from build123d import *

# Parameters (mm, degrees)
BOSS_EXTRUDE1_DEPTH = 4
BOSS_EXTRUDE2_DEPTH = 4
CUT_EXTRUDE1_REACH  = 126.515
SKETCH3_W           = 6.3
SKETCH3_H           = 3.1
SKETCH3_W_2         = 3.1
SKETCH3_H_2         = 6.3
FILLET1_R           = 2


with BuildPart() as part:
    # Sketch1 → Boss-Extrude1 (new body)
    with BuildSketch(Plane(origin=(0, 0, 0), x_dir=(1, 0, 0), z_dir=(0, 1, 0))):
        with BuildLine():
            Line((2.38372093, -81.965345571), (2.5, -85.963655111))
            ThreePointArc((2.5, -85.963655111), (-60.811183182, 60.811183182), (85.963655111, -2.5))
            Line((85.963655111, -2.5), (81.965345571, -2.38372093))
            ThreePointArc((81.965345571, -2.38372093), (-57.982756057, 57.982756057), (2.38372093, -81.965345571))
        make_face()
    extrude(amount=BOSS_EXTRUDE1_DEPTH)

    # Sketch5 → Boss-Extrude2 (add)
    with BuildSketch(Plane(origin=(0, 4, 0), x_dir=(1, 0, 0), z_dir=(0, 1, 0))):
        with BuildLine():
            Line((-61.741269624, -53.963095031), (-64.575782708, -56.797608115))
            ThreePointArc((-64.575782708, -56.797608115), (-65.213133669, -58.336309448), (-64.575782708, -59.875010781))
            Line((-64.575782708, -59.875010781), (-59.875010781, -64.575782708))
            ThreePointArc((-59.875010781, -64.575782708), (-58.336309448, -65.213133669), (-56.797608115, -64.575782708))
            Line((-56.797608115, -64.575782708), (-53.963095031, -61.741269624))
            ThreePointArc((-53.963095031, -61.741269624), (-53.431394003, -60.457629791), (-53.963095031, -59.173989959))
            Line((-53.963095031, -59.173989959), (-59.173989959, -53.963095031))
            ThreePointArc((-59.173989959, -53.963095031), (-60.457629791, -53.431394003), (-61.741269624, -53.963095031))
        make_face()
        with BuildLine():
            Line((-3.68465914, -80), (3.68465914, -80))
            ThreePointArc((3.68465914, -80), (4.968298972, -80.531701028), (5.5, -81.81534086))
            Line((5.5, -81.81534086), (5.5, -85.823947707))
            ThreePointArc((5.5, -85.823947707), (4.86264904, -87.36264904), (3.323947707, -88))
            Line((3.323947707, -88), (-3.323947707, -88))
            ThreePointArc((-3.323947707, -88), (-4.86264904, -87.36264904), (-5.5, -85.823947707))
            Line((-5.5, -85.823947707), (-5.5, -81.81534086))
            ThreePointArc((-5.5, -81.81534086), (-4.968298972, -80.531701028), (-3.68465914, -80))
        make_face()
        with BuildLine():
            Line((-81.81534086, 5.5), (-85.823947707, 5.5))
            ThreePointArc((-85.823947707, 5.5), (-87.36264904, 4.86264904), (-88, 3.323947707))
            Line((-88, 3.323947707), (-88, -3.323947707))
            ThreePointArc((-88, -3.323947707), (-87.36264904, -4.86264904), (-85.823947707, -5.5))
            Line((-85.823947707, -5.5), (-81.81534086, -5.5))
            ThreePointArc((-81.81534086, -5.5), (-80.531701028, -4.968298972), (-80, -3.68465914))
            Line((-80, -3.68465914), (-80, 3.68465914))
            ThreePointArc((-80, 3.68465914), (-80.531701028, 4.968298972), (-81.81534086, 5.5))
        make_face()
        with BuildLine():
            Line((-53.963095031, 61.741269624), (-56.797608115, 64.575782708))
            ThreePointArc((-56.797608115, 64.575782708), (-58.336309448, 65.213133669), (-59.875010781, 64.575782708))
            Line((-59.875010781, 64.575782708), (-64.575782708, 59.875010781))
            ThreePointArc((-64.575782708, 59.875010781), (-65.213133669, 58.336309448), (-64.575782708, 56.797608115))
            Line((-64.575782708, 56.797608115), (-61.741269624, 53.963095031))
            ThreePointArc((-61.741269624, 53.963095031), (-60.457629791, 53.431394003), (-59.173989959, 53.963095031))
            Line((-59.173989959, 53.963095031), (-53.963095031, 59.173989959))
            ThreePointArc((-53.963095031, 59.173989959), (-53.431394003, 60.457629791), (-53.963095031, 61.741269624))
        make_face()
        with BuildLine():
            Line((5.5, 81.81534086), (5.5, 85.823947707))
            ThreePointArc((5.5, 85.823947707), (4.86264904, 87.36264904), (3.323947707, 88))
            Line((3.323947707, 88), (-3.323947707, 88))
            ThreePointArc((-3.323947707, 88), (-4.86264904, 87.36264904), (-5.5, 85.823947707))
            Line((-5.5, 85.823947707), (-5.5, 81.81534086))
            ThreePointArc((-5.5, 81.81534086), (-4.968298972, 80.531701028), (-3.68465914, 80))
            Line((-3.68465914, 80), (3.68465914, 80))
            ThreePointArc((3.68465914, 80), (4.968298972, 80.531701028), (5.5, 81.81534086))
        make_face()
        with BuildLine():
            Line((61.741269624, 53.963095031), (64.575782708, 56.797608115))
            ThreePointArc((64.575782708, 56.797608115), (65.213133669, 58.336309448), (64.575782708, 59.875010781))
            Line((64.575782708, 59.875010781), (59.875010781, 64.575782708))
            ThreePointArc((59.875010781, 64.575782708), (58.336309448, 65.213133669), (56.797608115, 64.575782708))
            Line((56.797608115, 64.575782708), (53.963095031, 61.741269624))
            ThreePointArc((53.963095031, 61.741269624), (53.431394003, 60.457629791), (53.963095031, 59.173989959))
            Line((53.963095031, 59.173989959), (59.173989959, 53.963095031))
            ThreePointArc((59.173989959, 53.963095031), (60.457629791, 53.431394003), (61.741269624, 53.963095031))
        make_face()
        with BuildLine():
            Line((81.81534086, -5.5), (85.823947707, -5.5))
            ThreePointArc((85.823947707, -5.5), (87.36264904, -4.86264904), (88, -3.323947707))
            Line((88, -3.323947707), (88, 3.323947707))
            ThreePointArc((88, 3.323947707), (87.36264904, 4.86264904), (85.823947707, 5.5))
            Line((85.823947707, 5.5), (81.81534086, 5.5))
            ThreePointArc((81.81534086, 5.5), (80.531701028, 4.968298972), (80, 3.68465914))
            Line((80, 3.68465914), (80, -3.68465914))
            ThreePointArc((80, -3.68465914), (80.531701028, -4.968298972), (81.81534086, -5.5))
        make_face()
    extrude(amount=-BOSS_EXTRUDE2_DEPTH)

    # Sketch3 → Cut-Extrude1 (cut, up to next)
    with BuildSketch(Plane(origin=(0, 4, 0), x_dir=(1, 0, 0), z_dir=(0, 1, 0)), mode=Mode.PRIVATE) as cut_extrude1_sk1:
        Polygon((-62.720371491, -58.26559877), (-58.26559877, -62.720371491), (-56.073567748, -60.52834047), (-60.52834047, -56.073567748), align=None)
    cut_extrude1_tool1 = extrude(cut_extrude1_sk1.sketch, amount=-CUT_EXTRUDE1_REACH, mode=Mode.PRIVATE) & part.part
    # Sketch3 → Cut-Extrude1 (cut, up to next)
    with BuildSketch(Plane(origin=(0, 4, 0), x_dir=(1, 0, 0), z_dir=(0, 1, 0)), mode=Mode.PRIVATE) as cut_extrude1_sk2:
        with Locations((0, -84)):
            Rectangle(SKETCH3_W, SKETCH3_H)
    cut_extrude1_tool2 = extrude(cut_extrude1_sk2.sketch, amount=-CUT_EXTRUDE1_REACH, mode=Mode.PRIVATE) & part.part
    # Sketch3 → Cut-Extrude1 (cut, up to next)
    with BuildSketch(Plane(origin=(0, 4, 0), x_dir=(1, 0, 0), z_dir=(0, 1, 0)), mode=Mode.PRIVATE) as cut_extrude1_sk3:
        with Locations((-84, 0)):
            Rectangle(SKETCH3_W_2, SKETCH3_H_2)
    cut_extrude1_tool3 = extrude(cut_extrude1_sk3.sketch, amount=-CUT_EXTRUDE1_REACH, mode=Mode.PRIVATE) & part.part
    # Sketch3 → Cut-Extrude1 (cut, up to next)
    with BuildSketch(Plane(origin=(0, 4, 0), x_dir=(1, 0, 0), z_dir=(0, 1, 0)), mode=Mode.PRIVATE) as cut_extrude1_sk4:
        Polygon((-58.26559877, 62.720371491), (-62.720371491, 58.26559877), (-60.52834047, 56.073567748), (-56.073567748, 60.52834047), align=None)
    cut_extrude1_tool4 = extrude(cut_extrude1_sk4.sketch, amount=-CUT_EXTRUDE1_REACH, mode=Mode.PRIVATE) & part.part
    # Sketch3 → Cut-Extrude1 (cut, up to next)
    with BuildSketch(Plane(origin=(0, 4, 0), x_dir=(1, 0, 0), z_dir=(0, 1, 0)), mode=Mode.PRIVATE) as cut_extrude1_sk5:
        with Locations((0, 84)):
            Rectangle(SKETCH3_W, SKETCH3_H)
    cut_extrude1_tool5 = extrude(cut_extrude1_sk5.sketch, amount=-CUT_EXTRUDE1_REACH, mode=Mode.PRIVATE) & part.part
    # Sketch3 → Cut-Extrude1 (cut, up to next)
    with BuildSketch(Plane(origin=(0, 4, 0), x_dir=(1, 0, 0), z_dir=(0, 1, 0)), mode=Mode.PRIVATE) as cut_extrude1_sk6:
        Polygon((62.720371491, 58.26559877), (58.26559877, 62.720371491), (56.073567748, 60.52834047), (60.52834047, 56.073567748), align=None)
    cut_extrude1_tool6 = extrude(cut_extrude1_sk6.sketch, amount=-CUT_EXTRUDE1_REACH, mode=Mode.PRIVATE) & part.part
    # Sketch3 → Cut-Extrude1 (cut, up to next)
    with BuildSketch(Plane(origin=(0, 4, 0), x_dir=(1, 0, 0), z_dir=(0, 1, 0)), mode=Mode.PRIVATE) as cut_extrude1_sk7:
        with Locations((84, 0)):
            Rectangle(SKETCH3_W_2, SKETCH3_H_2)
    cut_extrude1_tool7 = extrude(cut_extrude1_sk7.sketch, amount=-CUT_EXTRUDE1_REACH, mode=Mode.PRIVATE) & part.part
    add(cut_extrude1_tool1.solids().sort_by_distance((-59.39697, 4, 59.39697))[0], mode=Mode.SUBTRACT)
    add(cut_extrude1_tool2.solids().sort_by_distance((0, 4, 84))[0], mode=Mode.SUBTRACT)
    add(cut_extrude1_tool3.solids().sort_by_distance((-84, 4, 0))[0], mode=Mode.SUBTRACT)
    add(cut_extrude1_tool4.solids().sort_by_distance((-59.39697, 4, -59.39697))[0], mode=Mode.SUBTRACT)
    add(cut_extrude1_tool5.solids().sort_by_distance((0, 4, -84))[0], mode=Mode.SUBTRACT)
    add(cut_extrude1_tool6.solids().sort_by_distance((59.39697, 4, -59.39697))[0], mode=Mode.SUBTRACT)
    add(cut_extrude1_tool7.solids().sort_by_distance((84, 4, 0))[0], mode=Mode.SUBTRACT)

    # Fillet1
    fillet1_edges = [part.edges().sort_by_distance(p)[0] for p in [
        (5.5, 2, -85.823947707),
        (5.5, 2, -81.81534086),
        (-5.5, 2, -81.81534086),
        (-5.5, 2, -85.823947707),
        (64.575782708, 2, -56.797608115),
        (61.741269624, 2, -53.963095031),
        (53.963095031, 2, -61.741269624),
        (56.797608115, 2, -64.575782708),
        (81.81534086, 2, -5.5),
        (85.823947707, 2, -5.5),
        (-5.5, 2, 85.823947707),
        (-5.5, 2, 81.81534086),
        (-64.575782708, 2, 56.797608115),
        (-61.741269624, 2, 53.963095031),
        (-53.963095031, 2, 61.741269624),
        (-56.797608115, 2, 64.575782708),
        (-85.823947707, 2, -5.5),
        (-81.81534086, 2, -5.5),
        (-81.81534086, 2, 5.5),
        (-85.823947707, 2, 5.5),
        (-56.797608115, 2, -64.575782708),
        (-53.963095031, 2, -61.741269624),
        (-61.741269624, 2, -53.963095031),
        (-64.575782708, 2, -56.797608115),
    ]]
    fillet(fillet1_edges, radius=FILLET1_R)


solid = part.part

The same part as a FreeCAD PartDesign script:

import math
import FreeCAD as App
import Part
import Sketcher
Q = App.Units.Quantity


def edges_at(feature, points):
    """Names of the edges that pass closest to the given points."""
    edges = feature.Shape.Edges
    near = lambda p: min(range(len(edges)), key=lambda i: edges[i].distToShape(Part.Vertex(*p))[0])
    return sorted({f"Edge{near(p) + 1}" for p in points})


def add_polygon(sketch, points):
    """Adds a closed chain of lines whose ends are joined by coincident constraints."""
    first, n = sketch.GeometryCount, len(points)
    for a, b in zip(points, points[1:] + points[:1]):
        sketch.addGeometry(Part.LineSegment(App.Vector(*a, 0), App.Vector(*b, 0)), False)
    for i in range(n):
        sketch.addConstraint(Sketcher.Constraint("Coincident", first + i, 2, first + (i + 1) % n, 1))

doc = App.newDocument("Part")
body = doc.addObject("PartDesign::Body", "Body")

# Sketch on XZ plane
sketch1 = doc.addObject("Sketcher::SketchObject", "Sketch")
body.addObject(sketch1)
sketch1.AttachmentSupport = (doc.XZ_Plane, [""])
sketch1.MapMode = "FlatFace"
sketch1.addGeometry([
    Part.LineSegment(App.Vector(2.5, 86, 0), App.Vector(2.4, 82, 0)),
    Part.ArcOfCircle(Part.Circle(App.Vector(0, 0, 0), App.Vector(0, 0, 1), 82), math.radians(88), math.radians(362)),
    Part.LineSegment(App.Vector(82, 2.4, 0), App.Vector(86, 2.5, 0)),
    Part.ArcOfCircle(Part.Circle(App.Vector(0, 0, 0), App.Vector(0, 0, 1), 86), math.radians(88), math.radians(362)),
], False)
sketch1.addConstraint([
    Sketcher.Constraint("Coincident", 0, 2, 1, 1),
    Sketcher.Constraint("Coincident", 1, 2, 2, 1),
    Sketcher.Constraint("Coincident", 2, 2, 3, 2),
    Sketcher.Constraint("Coincident", 3, 1, 0, 1),
    Sketcher.Constraint("Coincident", 1, 3, -1, 1),
    Sketcher.Constraint("Coincident", 3, 3, -1, 1),
    Sketcher.Constraint("Radius", 1, Q("82 mm")),
    Sketcher.Constraint("Radius", 3, Q("86 mm")),
    Sketcher.Constraint("DistanceY", -1, 1, 2, 2, Q("2.5 mm")),
    Sketcher.Constraint("DistanceX", -1, 1, 3, 1, Q("2.5 mm")),
    Sketcher.Constraint("DistanceX", -1, 1, 0, 2, Q("2.383721 mm")),
    Sketcher.Constraint("DistanceY", -1, 1, 1, 2, Q("2.383721 mm")),
])
pad1 = doc.addObject("PartDesign::Pad", "Pad")
body.addObject(pad1)
pad1.Profile = sketch1
pad1.Length = 4
pad1.Reversed = True

# Sketch on XZ plane
sketch2 = doc.addObject("Sketcher::SketchObject", "Sketch001")
body.addObject(sketch2)
sketch2.AttachmentSupport = (doc.XZ_Plane, [""])
sketch2.MapMode = "FlatFace"
sketch2.AttachmentOffset = App.Placement(App.Vector(0, 0, -4), App.Rotation())
sketch2.addGeometry([
    Part.LineSegment(App.Vector(-61.7, 54, 0), App.Vector(-64.6, 56.8, 0)),  # 0
    Part.ArcOfCircle(Part.Circle(App.Vector(-63, 58.3, 0), App.Vector(0, 0, 1), 2.2), math.radians(135), math.radians(225)),  # 1
    Part.LineSegment(App.Vector(-64.6, 59.9, 0), App.Vector(-59.9, 64.6, 0)),  # 2
    Part.ArcOfCircle(Part.Circle(App.Vector(-58.3, 63, 0), App.Vector(0, 0, 1), 2.2), math.radians(45), math.radians(135)),  # 3
    Part.LineSegment(App.Vector(-56.8, 64.6, 0), App.Vector(-54, 61.7, 0)),  # 4
    Part.ArcOfCircle(Part.Circle(App.Vector(-55.2, 60.5, 0), App.Vector(0, 0, 1), 1.8), math.radians(-45), math.radians(45)),  # 5
    Part.LineSegment(App.Vector(-54, 59.2, 0), App.Vector(-59.2, 54, 0)),  # 6
    Part.ArcOfCircle(Part.Circle(App.Vector(-60.5, 55.2, 0), App.Vector(0, 0, 1), 1.8), math.radians(-135), math.radians(-45)),  # 7
    Part.LineSegment(App.Vector(3.7, 80, 0), App.Vector(-3.7, 80, 0)),  # 8
    Part.ArcOfCircle(Part.Circle(App.Vector(-3.7, 81.8, 0), App.Vector(0, 0, 1), 1.8), math.radians(-180), math.radians(-90)),  # 9
    Part.LineSegment(App.Vector(-5.5, 81.8, 0), App.Vector(-5.5, 85.8, 0)),  # 10
    Part.ArcOfCircle(Part.Circle(App.Vector(-3.3, 85.8, 0), App.Vector(0, 0, 1), 2.2), math.radians(90), math.radians(180)),  # 11
    Part.LineSegment(App.Vector(-3.3, 88, 0), App.Vector(3.3, 88, 0)),  # 12
    Part.ArcOfCircle(Part.Circle(App.Vector(3.3, 85.8, 0), App.Vector(0, 0, 1), 2.2), math.radians(0), math.radians(90)),  # 13
    Part.LineSegment(App.Vector(5.5, 85.8, 0), App.Vector(5.5, 81.8, 0)),  # 14
    Part.ArcOfCircle(Part.Circle(App.Vector(3.7, 81.8, 0), App.Vector(0, 0, 1), 1.8), math.radians(-90), math.radians(0)),  # 15
    Part.LineSegment(App.Vector(-81.8, -5.5, 0), App.Vector(-85.8, -5.5, 0)),  # 16
    Part.ArcOfCircle(Part.Circle(App.Vector(-85.8, -3.3, 0), App.Vector(0, 0, 1), 2.2), math.radians(180), math.radians(270)),  # 17
    Part.LineSegment(App.Vector(-88, -3.3, 0), App.Vector(-88, 3.3, 0)),  # 18
    Part.ArcOfCircle(Part.Circle(App.Vector(-85.8, 3.3, 0), App.Vector(0, 0, 1), 2.2), math.radians(90), math.radians(180)),  # 19
    Part.LineSegment(App.Vector(-85.8, 5.5, 0), App.Vector(-81.8, 5.5, 0)),  # 20
    Part.ArcOfCircle(Part.Circle(App.Vector(-81.8, 3.7, 0), App.Vector(0, 0, 1), 1.8), math.radians(0), math.radians(90)),  # 21
    Part.LineSegment(App.Vector(-80, 3.7, 0), App.Vector(-80, -3.7, 0)),  # 22
    Part.ArcOfCircle(Part.Circle(App.Vector(-81.8, -3.7, 0), App.Vector(0, 0, 1), 1.8), math.radians(-90), math.radians(0)),  # 23
    Part.LineSegment(App.Vector(-54, -61.7, 0), App.Vector(-56.8, -64.6, 0)),  # 24
    Part.ArcOfCircle(Part.Circle(App.Vector(-58.3, -63, 0), App.Vector(0, 0, 1), 2.2), math.radians(-135), math.radians(-45)),  # 25
    Part.LineSegment(App.Vector(-59.9, -64.6, 0), App.Vector(-64.6, -59.9, 0)),  # 26
    Part.ArcOfCircle(Part.Circle(App.Vector(-63, -58.3, 0), App.Vector(0, 0, 1), 2.2), math.radians(135), math.radians(225)),  # 27
    Part.LineSegment(App.Vector(-64.6, -56.8, 0), App.Vector(-61.7, -54, 0)),  # 28
    Part.ArcOfCircle(Part.Circle(App.Vector(-60.5, -55.2, 0), App.Vector(0, 0, 1), 1.8), math.radians(45), math.radians(135)),  # 29
    Part.LineSegment(App.Vector(-59.2, -54, 0), App.Vector(-54, -59.2, 0)),  # 30
    Part.ArcOfCircle(Part.Circle(App.Vector(-55.2, -60.5, 0), App.Vector(0, 0, 1), 1.8), math.radians(-45), math.radians(45)),  # 31
    Part.LineSegment(App.Vector(5.5, -81.8, 0), App.Vector(5.5, -85.8, 0)),  # 32
    Part.ArcOfCircle(Part.Circle(App.Vector(3.3, -85.8, 0), App.Vector(0, 0, 1), 2.2), math.radians(-90), math.radians(0)),  # 33
    Part.LineSegment(App.Vector(3.3, -88, 0), App.Vector(-3.3, -88, 0)),  # 34
    Part.ArcOfCircle(Part.Circle(App.Vector(-3.3, -85.8, 0), App.Vector(0, 0, 1), 2.2), math.radians(180), math.radians(270)),  # 35
    Part.LineSegment(App.Vector(-5.5, -85.8, 0), App.Vector(-5.5, -81.8, 0)),  # 36
    Part.ArcOfCircle(Part.Circle(App.Vector(-3.7, -81.8, 0), App.Vector(0, 0, 1), 1.8), math.radians(90), math.radians(180)),  # 37
    Part.LineSegment(App.Vector(-3.7, -80, 0), App.Vector(3.7, -80, 0)),  # 38
    Part.ArcOfCircle(Part.Circle(App.Vector(3.7, -81.8, 0), App.Vector(0, 0, 1), 1.8), math.radians(0), math.radians(90)),  # 39
    Part.LineSegment(App.Vector(61.7, -54, 0), App.Vector(64.6, -56.8, 0)),  # 40
    Part.ArcOfCircle(Part.Circle(App.Vector(63, -58.3, 0), App.Vector(0, 0, 1), 2.2), math.radians(-45), math.radians(45)),  # 41
    Part.LineSegment(App.Vector(64.6, -59.9, 0), App.Vector(59.9, -64.6, 0)),  # 42
    Part.ArcOfCircle(Part.Circle(App.Vector(58.3, -63, 0), App.Vector(0, 0, 1), 2.2), math.radians(-135), math.radians(-45)),  # 43
    Part.LineSegment(App.Vector(56.8, -64.6, 0), App.Vector(54, -61.7, 0)),  # 44
    Part.ArcOfCircle(Part.Circle(App.Vector(55.2, -60.5, 0), App.Vector(0, 0, 1), 1.8), math.radians(135), math.radians(225)),  # 45
    Part.LineSegment(App.Vector(54, -59.2, 0), App.Vector(59.2, -54, 0)),  # 46
    Part.ArcOfCircle(Part.Circle(App.Vector(60.5, -55.2, 0), App.Vector(0, 0, 1), 1.8), math.radians(45), math.radians(135)),  # 47
    Part.LineSegment(App.Vector(81.8, 5.5, 0), App.Vector(85.8, 5.5, 0)),  # 48
    Part.ArcOfCircle(Part.Circle(App.Vector(85.8, 3.3, 0), App.Vector(0, 0, 1), 2.2), math.radians(0), math.radians(90)),  # 49
    Part.LineSegment(App.Vector(88, 3.3, 0), App.Vector(88, -3.3, 0)),  # 50
    Part.ArcOfCircle(Part.Circle(App.Vector(85.8, -3.3, 0), App.Vector(0, 0, 1), 2.2), math.radians(-90), math.radians(0)),  # 51
    Part.LineSegment(App.Vector(85.8, -5.5, 0), App.Vector(81.8, -5.5, 0)),  # 52
    Part.ArcOfCircle(Part.Circle(App.Vector(81.8, -3.7, 0), App.Vector(0, 0, 1), 1.8), math.radians(-180), math.radians(-90)),  # 53
    Part.LineSegment(App.Vector(80, -3.7, 0), App.Vector(80, 3.7, 0)),  # 54
    Part.ArcOfCircle(Part.Circle(App.Vector(81.8, 3.7, 0), App.Vector(0, 0, 1), 1.8), math.radians(90), math.radians(180)),  # 55
], False)
sketch2.addConstraint([
    Sketcher.Constraint("Tangent", 0, 2, 1, 2),
    Sketcher.Constraint("Tangent", 1, 1, 2, 1),
    Sketcher.Constraint("Tangent", 2, 2, 3, 2),
    Sketcher.Constraint("Tangent", 3, 1, 4, 1),
    Sketcher.Constraint("Tangent", 4, 2, 5, 2),
    Sketcher.Constraint("Tangent", 5, 1, 6, 1),
    Sketcher.Constraint("Tangent", 6, 2, 7, 2),
    Sketcher.Constraint("Tangent", 7, 1, 0, 1),
    Sketcher.Constraint("Tangent", 8, 2, 9, 2),
    Sketcher.Constraint("Tangent", 9, 1, 10, 1),
    Sketcher.Constraint("Tangent", 10, 2, 11, 2),
    Sketcher.Constraint("Tangent", 11, 1, 12, 1),
    Sketcher.Constraint("Tangent", 12, 2, 13, 2),
    Sketcher.Constraint("Tangent", 13, 1, 14, 1),
    Sketcher.Constraint("Tangent", 14, 2, 15, 2),
    Sketcher.Constraint("Tangent", 15, 1, 8, 1),
    Sketcher.Constraint("Tangent", 16, 2, 17, 2),
    Sketcher.Constraint("Tangent", 17, 1, 18, 1),
    Sketcher.Constraint("Tangent", 18, 2, 19, 2),
    Sketcher.Constraint("Tangent", 19, 1, 20, 1),
    Sketcher.Constraint("Tangent", 20, 2, 21, 2),
    Sketcher.Constraint("Tangent", 21, 1, 22, 1),
    Sketcher.Constraint("Tangent", 22, 2, 23, 2),
    Sketcher.Constraint("Tangent", 23, 1, 16, 1),
    Sketcher.Constraint("Tangent", 24, 2, 25, 2),
    Sketcher.Constraint("Tangent", 25, 1, 26, 1),
    Sketcher.Constraint("Tangent", 26, 2, 27, 2),
    Sketcher.Constraint("Tangent", 27, 1, 28, 1),
    Sketcher.Constraint("Tangent", 28, 2, 29, 2),
    Sketcher.Constraint("Tangent", 29, 1, 30, 1),
    Sketcher.Constraint("Tangent", 30, 2, 31, 2),
    Sketcher.Constraint("Tangent", 31, 1, 24, 1),
    Sketcher.Constraint("Tangent", 32, 2, 33, 2),
    Sketcher.Constraint("Tangent", 33, 1, 34, 1),
    Sketcher.Constraint("Tangent", 34, 2, 35, 2),
    Sketcher.Constraint("Tangent", 35, 1, 36, 1),
    Sketcher.Constraint("Tangent", 36, 2, 37, 2),
    Sketcher.Constraint("Tangent", 37, 1, 38, 1),
    Sketcher.Constraint("Tangent", 38, 2, 39, 2),
    Sketcher.Constraint("Tangent", 39, 1, 32, 1),
    Sketcher.Constraint("Tangent", 40, 2, 41, 2),
    Sketcher.Constraint("Tangent", 41, 1, 42, 1),
    Sketcher.Constraint("Tangent", 42, 2, 43, 2),
    Sketcher.Constraint("Tangent", 43, 1, 44, 1),
    Sketcher.Constraint("Tangent", 44, 2, 45, 2),
    Sketcher.Constraint("Tangent", 45, 1, 46, 1),
    Sketcher.Constraint("Tangent", 46, 2, 47, 2),
    Sketcher.Constraint("Tangent", 47, 1, 40, 1),
    Sketcher.Constraint("Tangent", 48, 2, 49, 2),
    Sketcher.Constraint("Tangent", 49, 1, 50, 1),
    Sketcher.Constraint("Tangent", 50, 2, 51, 2),
    Sketcher.Constraint("Tangent", 51, 1, 52, 1),
    Sketcher.Constraint("Tangent", 52, 2, 53, 2),
    Sketcher.Constraint("Tangent", 53, 1, 54, 1),
    Sketcher.Constraint("Tangent", 54, 2, 55, 2),
    Sketcher.Constraint("Tangent", 55, 1, 48, 1),
    Sketcher.Constraint("Horizontal", 8),
    Sketcher.Constraint("Vertical", 10),
    Sketcher.Constraint("Horizontal", 12),
    Sketcher.Constraint("Vertical", 14),
    Sketcher.Constraint("Horizontal", 16),
    Sketcher.Constraint("Vertical", 18),
    Sketcher.Constraint("Horizontal", 20),
    Sketcher.Constraint("Vertical", 22),
    Sketcher.Constraint("Vertical", 32),
    Sketcher.Constraint("Horizontal", 34),
    Sketcher.Constraint("Vertical", 36),
    Sketcher.Constraint("Horizontal", 38),
    Sketcher.Constraint("Horizontal", 48),
    Sketcher.Constraint("Vertical", 50),
    Sketcher.Constraint("Horizontal", 52),
    Sketcher.Constraint("Vertical", 54),
    Sketcher.Constraint("Equal", 1, 3),
    Sketcher.Constraint("Equal", 5, 7),
    Sketcher.Constraint("Equal", 7, 9),
    Sketcher.Constraint("Equal", 3, 11),
    Sketcher.Constraint("Equal", 11, 13),
    Sketcher.Constraint("Equal", 9, 15),
    Sketcher.Constraint("Equal", 13, 17),
    Sketcher.Constraint("Equal", 17, 19),
    Sketcher.Constraint("Equal", 15, 21),
    Sketcher.Constraint("Equal", 21, 23),
    Sketcher.Constraint("Equal", 19, 25),
    Sketcher.Constraint("Equal", 25, 27),
    Sketcher.Constraint("Equal", 23, 29),
    Sketcher.Constraint("Equal", 29, 31),
    Sketcher.Constraint("Equal", 27, 33),
    Sketcher.Constraint("Equal", 33, 35),
    Sketcher.Constraint("Equal", 31, 37),
    Sketcher.Constraint("Equal", 37, 39),
    Sketcher.Constraint("Equal", 35, 41),
    Sketcher.Constraint("Equal", 41, 43),
    Sketcher.Constraint("Equal", 39, 45),
    Sketcher.Constraint("Equal", 45, 47),
    Sketcher.Constraint("Equal", 43, 49),
    Sketcher.Constraint("Equal", 49, 51),
    Sketcher.Constraint("Equal", 47, 53),
    Sketcher.Constraint("Equal", 53, 55),
    Sketcher.Constraint("Symmetric", 11, 3, 33, 3, -1, 1),
    Sketcher.Constraint("Symmetric", 15, 3, 37, 3, -1, 1),
    Sketcher.Constraint("Symmetric", 1, 3, 41, 3, -1, 1),
    Sketcher.Constraint("Symmetric", 3, 3, 43, 3, -1, 1),
    Sketcher.Constraint("Symmetric", 5, 3, 45, 3, -1, 1),
    Sketcher.Constraint("Symmetric", 7, 3, 47, 3, -1, 1),
    Sketcher.Constraint("Symmetric", 17, 3, 49, 3, -1, 1),
    Sketcher.Constraint("Symmetric", 21, 3, 53, 3, -1, 1),
    Sketcher.Constraint("Symmetric", 27, 3, 41, 3, -2),
    Sketcher.Constraint("Symmetric", 25, 3, 43, 3, -2),
    Sketcher.Constraint("Symmetric", 31, 3, 45, 3, -2),
    Sketcher.Constraint("Symmetric", 29, 3, 47, 3, -2),
    Sketcher.Constraint("Perpendicular", 0, 2),
    Sketcher.Constraint("Perpendicular", 2, 4),
    Sketcher.Constraint("Perpendicular", 4, 6),
    Sketcher.Constraint("Parallel", 6, 24),
    Sketcher.Constraint("Horizontal", 19, 3, 49, 3),
    Sketcher.Constraint("Vertical", 13, 3, 33, 3),
    Sketcher.Constraint("Equal", 52, 10),
    Sketcher.Constraint("Equal", 34, 18),
    Sketcher.Constraint("DistanceY", -1, 1, 8, 2, Q("80 mm")),
    Sketcher.Constraint("DistanceY", -1, 1, 11, 1, Q("88 mm")),
    Sketcher.Constraint("DistanceX", 17, 1, -1, 1, Q("88 mm")),
    Sketcher.Constraint("DistanceX", 9, 1, -1, 1, Q("5.5 mm")),
    Sketcher.Constraint("Radius", 5, Q("1.815341 mm")),
    Sketcher.Constraint("Radius", 1, Q("2.176052 mm")),
    Sketcher.Constraint("Distance", 6, Q("7.369318 mm")),
    Sketcher.Constraint("DistanceX", 1, 3, -1, 1, Q("63.037081 mm")),
    Sketcher.Constraint("DistanceY", -1, 1, 1, 3, Q("58.336309 mm")),
    Sketcher.Constraint("DistanceY", -1, 1, 5, 3, Q("60.45763 mm")),
])
pad2 = doc.addObject("PartDesign::Pad", "Pad001")
body.addObject(pad2)
pad2.Profile = sketch2
pad2.Length = 4

# Sketch on XZ plane
sketch3 = doc.addObject("Sketcher::SketchObject", "Sketch002")
body.addObject(sketch3)
sketch3.AttachmentSupport = (doc.XZ_Plane, [""])
sketch3.MapMode = "FlatFace"
sketch3.AttachmentOffset = App.Placement(App.Vector(0, 0, -4), App.Rotation())
add_polygon(sketch3, [(-62.7, 58.3), (-58.3, 62.7), (-56.1, 60.5), (-60.5, 56.1)])  # lines 0-3
sketch3.addConstraint([
    Sketcher.Constraint("Perpendicular", 0, 1),
    Sketcher.Constraint("Perpendicular", 1, 2),
    Sketcher.Constraint("Perpendicular", 2, 3),
    Sketcher.Constraint("Angle", 0, Q("45 deg")),
    Sketcher.Constraint("Distance", 0, Q("6.3 mm")),
    Sketcher.Constraint("Distance", 1, Q("3.1 mm")),
    Sketcher.Constraint("DistanceX", 0, 2, -1, 1, Q("58.265599 mm")),
    Sketcher.Constraint("DistanceY", -1, 1, 3, 2, Q("58.265599 mm")),
])
pocket1 = doc.addObject("PartDesign::Pocket", "Pocket")
body.addObject(pocket1)
pocket1.Profile = sketch3
pocket1.Type = "UpToFirst"
pocket1.Reversed = True

# Sketch on XZ plane
sketch4 = doc.addObject("Sketcher::SketchObject", "Sketch003")
body.addObject(sketch4)
sketch4.AttachmentSupport = (doc.XZ_Plane, [""])
sketch4.MapMode = "FlatFace"
sketch4.AttachmentOffset = App.Placement(App.Vector(0, 0, -4), App.Rotation())
add_polygon(sketch4, [(-3.1, 82.5), (-3.1, 85.5), (3.1, 85.5), (3.1, 82.5)])  # lines 0-3
sketch4.addConstraint([
    Sketcher.Constraint("Vertical", 0),
    Sketcher.Constraint("Horizontal", 1),
    Sketcher.Constraint("Vertical", 2),
    Sketcher.Constraint("Horizontal", 3),
    Sketcher.Constraint("DistanceX", 1, 1, 1, 2, Q("6.3 mm")),
    Sketcher.Constraint("DistanceY", 0, 1, 0, 2, Q("3.1 mm")),
    Sketcher.Constraint("DistanceX", 0, 2, -1, 1, Q("3.15 mm")),
    Sketcher.Constraint("DistanceY", -1, 1, 0, 2, Q("85.55 mm")),
])
pocket2 = doc.addObject("PartDesign::Pocket", "Pocket001")
body.addObject(pocket2)
pocket2.Profile = sketch4
pocket2.Type = "UpToFirst"
pocket2.Reversed = True

# Sketch on XZ plane
sketch5 = doc.addObject("Sketcher::SketchObject", "Sketch004")
body.addObject(sketch5)
sketch5.AttachmentSupport = (doc.XZ_Plane, [""])
sketch5.MapMode = "FlatFace"
sketch5.AttachmentOffset = App.Placement(App.Vector(0, 0, -4), App.Rotation())
add_polygon(sketch5, [(-85.5, -3.1), (-85.5, 3.1), (-82.5, 3.1), (-82.5, -3.1)])  # lines 0-3
sketch5.addConstraint([
    Sketcher.Constraint("Vertical", 0),
    Sketcher.Constraint("Horizontal", 1),
    Sketcher.Constraint("Vertical", 2),
    Sketcher.Constraint("Horizontal", 3),
    Sketcher.Constraint("DistanceX", 1, 1, 1, 2, Q("3.1 mm")),
    Sketcher.Constraint("DistanceY", 0, 1, 0, 2, Q("6.3 mm")),
    Sketcher.Constraint("DistanceX", 0, 2, -1, 1, Q("85.55 mm")),
    Sketcher.Constraint("DistanceY", -1, 1, 0, 2, Q("3.15 mm")),
])
pocket3 = doc.addObject("PartDesign::Pocket", "Pocket002")
body.addObject(pocket3)
pocket3.Profile = sketch5
pocket3.Type = "UpToFirst"
pocket3.Reversed = True

# Sketch on XZ plane
sketch6 = doc.addObject("Sketcher::SketchObject", "Sketch005")
body.addObject(sketch6)
sketch6.AttachmentSupport = (doc.XZ_Plane, [""])
sketch6.MapMode = "FlatFace"
sketch6.AttachmentOffset = App.Placement(App.Vector(0, 0, -4), App.Rotation())
add_polygon(sketch6, [(-58.3, -62.7), (-62.7, -58.3), (-60.5, -56.1), (-56.1, -60.5)])  # lines 0-3
sketch6.addConstraint([
    Sketcher.Constraint("Perpendicular", 0, 1),
    Sketcher.Constraint("Perpendicular", 1, 2),
    Sketcher.Constraint("Perpendicular", 2, 3),
    Sketcher.Constraint("Angle", 0, Q("135 deg")),
    Sketcher.Constraint("Distance", 0, Q("6.3 mm")),
    Sketcher.Constraint("Distance", 1, Q("3.1 mm")),
    Sketcher.Constraint("DistanceY", 0, 2, -1, 1, Q("58.265599 mm")),
    Sketcher.Constraint("DistanceX", 3, 2, -1, 1, Q("58.265599 mm")),
])
pocket4 = doc.addObject("PartDesign::Pocket", "Pocket003")
body.addObject(pocket4)
pocket4.Profile = sketch6
pocket4.Type = "UpToFirst"
pocket4.Reversed = True

# Sketch on XZ plane
sketch7 = doc.addObject("Sketcher::SketchObject", "Sketch006")
body.addObject(sketch7)
sketch7.AttachmentSupport = (doc.XZ_Plane, [""])
sketch7.MapMode = "FlatFace"
sketch7.AttachmentOffset = App.Placement(App.Vector(0, 0, -4), App.Rotation())
add_polygon(sketch7, [(-3.1, -85.5), (-3.1, -82.5), (3.1, -82.5), (3.1, -85.5)])  # lines 0-3
sketch7.addConstraint([
    Sketcher.Constraint("Vertical", 0),
    Sketcher.Constraint("Horizontal", 1),
    Sketcher.Constraint("Vertical", 2),
    Sketcher.Constraint("Horizontal", 3),
    Sketcher.Constraint("DistanceX", 1, 1, 1, 2, Q("6.3 mm")),
    Sketcher.Constraint("DistanceY", 0, 1, 0, 2, Q("3.1 mm")),
    Sketcher.Constraint("DistanceX", 0, 2, -1, 1, Q("3.15 mm")),
    Sketcher.Constraint("DistanceY", 0, 2, -1, 1, Q("82.45 mm")),
])
pocket5 = doc.addObject("PartDesign::Pocket", "Pocket004")
body.addObject(pocket5)
pocket5.Profile = sketch7
pocket5.Type = "UpToFirst"
pocket5.Reversed = True

# Sketch on XZ plane
sketch8 = doc.addObject("Sketcher::SketchObject", "Sketch007")
body.addObject(sketch8)
sketch8.AttachmentSupport = (doc.XZ_Plane, [""])
sketch8.MapMode = "FlatFace"
sketch8.AttachmentOffset = App.Placement(App.Vector(0, 0, -4), App.Rotation())
add_polygon(sketch8, [(62.7, -58.3), (58.3, -62.7), (56.1, -60.5), (60.5, -56.1)])  # lines 0-3
sketch8.addConstraint([
    Sketcher.Constraint("Perpendicular", 0, 1),
    Sketcher.Constraint("Perpendicular", 1, 2),
    Sketcher.Constraint("Perpendicular", 2, 3),
    Sketcher.Constraint("Angle", 0, Q("-135 deg")),
    Sketcher.Constraint("Distance", 0, Q("6.3 mm")),
    Sketcher.Constraint("Distance", 1, Q("3.1 mm")),
    Sketcher.Constraint("DistanceX", -1, 1, 0, 2, Q("58.265599 mm")),
    Sketcher.Constraint("DistanceY", 3, 2, -1, 1, Q("58.265599 mm")),
])
pocket6 = doc.addObject("PartDesign::Pocket", "Pocket005")
body.addObject(pocket6)
pocket6.Profile = sketch8
pocket6.Type = "UpToFirst"
pocket6.Reversed = True

# Sketch on XZ plane
sketch9 = doc.addObject("Sketcher::SketchObject", "Sketch008")
body.addObject(sketch9)
sketch9.AttachmentSupport = (doc.XZ_Plane, [""])
sketch9.MapMode = "FlatFace"
sketch9.AttachmentOffset = App.Placement(App.Vector(0, 0, -4), App.Rotation())
add_polygon(sketch9, [(82.5, -3.1), (82.5, 3.1), (85.5, 3.1), (85.5, -3.1)])  # lines 0-3
sketch9.addConstraint([
    Sketcher.Constraint("Vertical", 0),
    Sketcher.Constraint("Horizontal", 1),
    Sketcher.Constraint("Vertical", 2),
    Sketcher.Constraint("Horizontal", 3),
    Sketcher.Constraint("DistanceX", 1, 1, 1, 2, Q("3.1 mm")),
    Sketcher.Constraint("DistanceY", 0, 1, 0, 2, Q("6.3 mm")),
    Sketcher.Constraint("DistanceX", -1, 1, 0, 2, Q("82.45 mm")),
    Sketcher.Constraint("DistanceY", -1, 1, 0, 2, Q("3.15 mm")),
])
pocket7 = doc.addObject("PartDesign::Pocket", "Pocket006")
body.addObject(pocket7)
pocket7.Profile = sketch9
pocket7.Type = "UpToFirst"
pocket7.Reversed = True
doc.recompute()

fillet = doc.addObject("PartDesign::Fillet", "Fillet")
body.addObject(fillet)
fillet.Base = (pocket7, edges_at(pocket7, [
    (5.5, 2, -85.824),
    (5.5, 2, -81.815),
    (-5.5, 2, -81.815),
    (-5.5, 2, -85.824),
    (64.576, 2, -56.798),
    (61.741, 2, -53.963),
    (53.963, 2, -61.741),
    (56.798, 2, -64.576),
    (81.815, 2, -5.5),
    (85.824, 2, -5.5),
    (-5.5, 2, 85.824),
    (-5.5, 2, 81.815),
    (-64.576, 2, 56.798),
    (-61.741, 2, 53.963),
    (-53.963, 2, 61.741),
    (-56.798, 2, 64.576),
    (-85.824, 2, -5.5),
    (-81.815, 2, -5.5),
    (-81.815, 2, 5.5),
    (-85.824, 2, 5.5),
    (-56.798, 2, -64.576),
    (-53.963, 2, -61.741),
    (-61.741, 2, -53.963),
    (-64.576, 2, -56.798),
]))
fillet.Radius = 2

doc.recompute()
